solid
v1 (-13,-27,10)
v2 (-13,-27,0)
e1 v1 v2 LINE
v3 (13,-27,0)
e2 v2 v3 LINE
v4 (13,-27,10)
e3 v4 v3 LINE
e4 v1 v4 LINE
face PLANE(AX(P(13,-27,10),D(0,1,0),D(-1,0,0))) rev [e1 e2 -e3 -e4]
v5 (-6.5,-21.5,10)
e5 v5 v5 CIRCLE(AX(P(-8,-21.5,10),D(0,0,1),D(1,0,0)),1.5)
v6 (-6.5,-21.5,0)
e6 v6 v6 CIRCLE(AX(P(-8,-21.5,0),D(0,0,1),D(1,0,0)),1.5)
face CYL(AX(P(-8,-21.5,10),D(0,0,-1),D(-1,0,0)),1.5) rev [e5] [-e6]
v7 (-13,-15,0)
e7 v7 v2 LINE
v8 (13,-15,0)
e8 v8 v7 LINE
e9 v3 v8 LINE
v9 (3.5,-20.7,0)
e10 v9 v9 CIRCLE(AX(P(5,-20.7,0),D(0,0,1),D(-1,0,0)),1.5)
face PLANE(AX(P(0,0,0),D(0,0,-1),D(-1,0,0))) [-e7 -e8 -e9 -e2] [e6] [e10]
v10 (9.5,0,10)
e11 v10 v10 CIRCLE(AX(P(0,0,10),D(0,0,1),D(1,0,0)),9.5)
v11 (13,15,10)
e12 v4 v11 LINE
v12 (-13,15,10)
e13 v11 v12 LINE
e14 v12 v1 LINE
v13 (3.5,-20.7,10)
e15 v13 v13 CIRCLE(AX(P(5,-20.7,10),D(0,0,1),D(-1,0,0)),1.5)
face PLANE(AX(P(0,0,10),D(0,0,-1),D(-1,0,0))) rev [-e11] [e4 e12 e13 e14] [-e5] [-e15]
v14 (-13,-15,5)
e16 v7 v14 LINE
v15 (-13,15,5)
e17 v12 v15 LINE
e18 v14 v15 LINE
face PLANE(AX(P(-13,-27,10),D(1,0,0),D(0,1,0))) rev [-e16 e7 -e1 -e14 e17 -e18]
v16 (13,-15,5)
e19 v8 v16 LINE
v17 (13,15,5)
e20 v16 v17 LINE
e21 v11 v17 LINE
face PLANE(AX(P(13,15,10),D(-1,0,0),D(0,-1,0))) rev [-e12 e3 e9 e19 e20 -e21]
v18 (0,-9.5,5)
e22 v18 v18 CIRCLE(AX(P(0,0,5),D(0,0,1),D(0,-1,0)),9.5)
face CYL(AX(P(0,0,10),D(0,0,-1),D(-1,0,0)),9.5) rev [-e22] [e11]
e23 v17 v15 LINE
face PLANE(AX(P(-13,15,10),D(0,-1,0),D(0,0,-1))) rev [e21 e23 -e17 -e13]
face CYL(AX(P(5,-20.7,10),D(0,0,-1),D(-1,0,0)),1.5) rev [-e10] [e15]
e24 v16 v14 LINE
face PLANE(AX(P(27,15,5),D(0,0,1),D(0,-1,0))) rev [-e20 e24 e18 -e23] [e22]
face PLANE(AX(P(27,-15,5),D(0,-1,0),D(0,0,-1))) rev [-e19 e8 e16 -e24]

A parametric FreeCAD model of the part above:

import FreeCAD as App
import Part
import Sketcher
from FreeCAD import Vector
Q = App.Units.Quantity


def add_polygon(sketch, points):
    """Adds a closed chain of lines whose ends are joined by coincident constraints."""
    first, n = sketch.GeometryCount, len(points)
    for a, b in zip(points, points[1:] + points[:1]):
        sketch.addGeometry(Part.LineSegment(App.Vector(*a, 0), App.Vector(*b, 0)), False)
    for i in range(n):
        sketch.addConstraint(Sketcher.Constraint("Coincident", first + i, 2, first + (i + 1) % n, 1))

doc = App.newDocument("Part")
body = doc.addObject("PartDesign::Body", "Body")

# Sketch on XY plane
sketch1 = body.newObject("Sketcher::SketchObject", "Sketch")
sketch1.AttachmentSupport = (doc.getObject("XY_Plane"), [""])
sketch1.MapMode = "FlatFace"
add_polygon(sketch1, [(-13, 15), (-13, -27), (13, -27), (13, 15)])  # lines 0-3
sketch1.addGeometry(Part.Circle(Vector(-8, -21.5, 0), Vector(0, 0, 1), 1.5), False)  # 4
sketch1.addGeometry(Part.Circle(Vector(5, -20.7, 0), Vector(0, 0, 1), 1.5), False)  # 5
sketch1.addGeometry(Part.Circle(Vector(0, 0, 0), Vector(0, 0, 1), 9.5), False)  # 6
sketch1.addConstraint([
    Sketcher.Constraint("Vertical", 0),
    Sketcher.Constraint("Horizontal", 1),
    Sketcher.Constraint("Vertical", 2),
    Sketcher.Constraint("Horizontal", 3),
    Sketcher.Constraint("Coincident", 6, 3, -1, 1),
    Sketcher.Constraint("Equal", 4, 5),
    Sketcher.Constraint("Diameter", 4, Q("3 mm")),
    Sketcher.Constraint("Diameter", 6, Q("19 mm")),
    Sketcher.Constraint("DistanceX", 1, 1, 1, 2, Q("26 mm")),
    Sketcher.Constraint("DistanceY", 0, 2, 0, 1, Q("42 mm")),
    Sketcher.Constraint("DistanceX", 4, 3, -1, 1, Q("8 mm")),
    Sketcher.Constraint("DistanceX", -1, 1, 5, 3, Q("5 mm")),
    Sketcher.Constraint("DistanceX", 0, 2, -1, 1, Q("13 mm")),
    Sketcher.Constraint("DistanceY", 0, 2, -1, 1, Q("27 mm")),
    Sketcher.Constraint("DistanceY", 4, 3, -1, 1, Q("21.5 mm")),
    Sketcher.Constraint("DistanceY", 5, 3, -1, 1, Q("20.7 mm")),
])
pad1 = body.newObject("PartDesign::Pad", "Pad")
pad1.Profile = sketch1
pad1.Length = 10

# Sketch on YZ plane
sketch2 = body.newObject("Sketcher::SketchObject", "Sketch001")
sketch2.AttachmentSupport = (doc.getObject("YZ_Plane"), [""])
sketch2.MapMode = "FlatFace"
sketch2.AttachmentOffset = App.Placement(Vector(0, 0, -13), App.Rotation())
add_polygon(sketch2, [(15, 0), (-15, 0), (-15, 5), (15, 5)])  # lines 0-3
sketch2.addConstraint([
    Sketcher.Constraint("Horizontal", 0),
    Sketcher.Constraint("Vertical", 1),
    Sketcher.Constraint("Horizontal", 2),
    Sketcher.Constraint("Vertical", 3),
    Sketcher.Constraint("Symmetric", 0, 2, 3, 2, -1, 1),
    Sketcher.Constraint("DistanceX", 0, 2, 0, 1, Q("30 mm")),
    Sketcher.Constraint("DistanceY", 1, 1, 1, 2, Q("5 mm")),
])
pocket1 = body.newObject("PartDesign::Pocket", "Pocket")
pocket1.Profile = sketch2
pocket1.Length = 40
pocket1.Reversed = True

doc.recompute()
